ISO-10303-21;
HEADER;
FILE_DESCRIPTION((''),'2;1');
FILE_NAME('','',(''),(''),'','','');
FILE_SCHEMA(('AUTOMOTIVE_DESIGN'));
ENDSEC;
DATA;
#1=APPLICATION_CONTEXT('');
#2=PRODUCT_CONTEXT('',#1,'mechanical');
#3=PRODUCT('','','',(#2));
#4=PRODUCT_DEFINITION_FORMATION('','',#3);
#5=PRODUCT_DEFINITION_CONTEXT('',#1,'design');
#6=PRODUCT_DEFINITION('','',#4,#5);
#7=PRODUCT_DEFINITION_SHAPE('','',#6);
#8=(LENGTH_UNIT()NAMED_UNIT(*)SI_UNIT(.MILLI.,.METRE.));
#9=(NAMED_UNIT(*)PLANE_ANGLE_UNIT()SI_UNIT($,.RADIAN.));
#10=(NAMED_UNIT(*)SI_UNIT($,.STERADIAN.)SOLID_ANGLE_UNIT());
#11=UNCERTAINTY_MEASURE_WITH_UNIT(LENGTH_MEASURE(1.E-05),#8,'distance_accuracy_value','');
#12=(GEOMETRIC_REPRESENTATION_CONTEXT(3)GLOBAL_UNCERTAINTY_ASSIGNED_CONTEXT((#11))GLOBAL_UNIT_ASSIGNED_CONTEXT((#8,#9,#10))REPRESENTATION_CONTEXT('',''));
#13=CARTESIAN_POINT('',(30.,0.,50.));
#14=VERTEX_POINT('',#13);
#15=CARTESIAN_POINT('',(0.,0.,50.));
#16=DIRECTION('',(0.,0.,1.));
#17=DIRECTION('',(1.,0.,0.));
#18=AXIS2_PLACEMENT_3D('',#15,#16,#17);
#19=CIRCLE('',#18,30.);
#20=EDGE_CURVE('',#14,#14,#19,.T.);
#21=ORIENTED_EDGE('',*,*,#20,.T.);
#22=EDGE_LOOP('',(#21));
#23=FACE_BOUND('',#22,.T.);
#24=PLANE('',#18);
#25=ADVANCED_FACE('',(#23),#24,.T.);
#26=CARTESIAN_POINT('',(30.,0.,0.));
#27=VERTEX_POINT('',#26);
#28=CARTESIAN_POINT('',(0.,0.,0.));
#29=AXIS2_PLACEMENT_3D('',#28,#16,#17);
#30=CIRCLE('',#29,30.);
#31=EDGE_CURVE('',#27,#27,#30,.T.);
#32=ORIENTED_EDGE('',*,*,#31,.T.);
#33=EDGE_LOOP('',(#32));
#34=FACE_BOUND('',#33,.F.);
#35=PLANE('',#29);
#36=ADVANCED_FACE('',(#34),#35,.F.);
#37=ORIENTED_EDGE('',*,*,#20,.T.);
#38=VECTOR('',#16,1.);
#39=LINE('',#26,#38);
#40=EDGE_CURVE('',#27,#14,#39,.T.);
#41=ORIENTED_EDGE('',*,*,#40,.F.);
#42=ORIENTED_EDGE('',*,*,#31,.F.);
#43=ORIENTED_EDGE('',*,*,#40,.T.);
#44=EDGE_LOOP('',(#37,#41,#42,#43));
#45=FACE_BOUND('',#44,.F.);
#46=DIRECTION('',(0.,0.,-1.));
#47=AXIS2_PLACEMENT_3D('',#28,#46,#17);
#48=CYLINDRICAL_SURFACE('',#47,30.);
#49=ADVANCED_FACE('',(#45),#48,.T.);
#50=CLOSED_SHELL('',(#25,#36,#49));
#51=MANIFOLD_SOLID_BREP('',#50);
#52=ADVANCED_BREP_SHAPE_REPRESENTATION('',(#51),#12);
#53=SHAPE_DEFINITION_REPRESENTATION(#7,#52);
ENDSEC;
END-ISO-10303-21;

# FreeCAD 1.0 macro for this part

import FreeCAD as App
import Part
import Sketcher

doc = App.newDocument("Part")
body = doc.addObject("PartDesign::Body", "Body")

sketch1 = body.newObject("Sketcher::SketchObject", "Sketch")
sketch1.AttachmentSupport = (doc.getObject("XY_Plane"), [""])
sketch1.MapMode = "FlatFace"
sketch1.addGeometry(Part.Circle(App.Vector(0, 0, 0), App.Vector(0, 0, 1), 30), False)
sketch1.addConstraint(Sketcher.Constraint("Coincident", 0, 3, -1, 1))
sketch1.addConstraint(Sketcher.Constraint("Diameter", 0, 60.0))
pad1 = body.newObject("PartDesign::Pad", "Pad")
pad1.Profile = sketch1
pad1.Length = 50

doc.recompute()
